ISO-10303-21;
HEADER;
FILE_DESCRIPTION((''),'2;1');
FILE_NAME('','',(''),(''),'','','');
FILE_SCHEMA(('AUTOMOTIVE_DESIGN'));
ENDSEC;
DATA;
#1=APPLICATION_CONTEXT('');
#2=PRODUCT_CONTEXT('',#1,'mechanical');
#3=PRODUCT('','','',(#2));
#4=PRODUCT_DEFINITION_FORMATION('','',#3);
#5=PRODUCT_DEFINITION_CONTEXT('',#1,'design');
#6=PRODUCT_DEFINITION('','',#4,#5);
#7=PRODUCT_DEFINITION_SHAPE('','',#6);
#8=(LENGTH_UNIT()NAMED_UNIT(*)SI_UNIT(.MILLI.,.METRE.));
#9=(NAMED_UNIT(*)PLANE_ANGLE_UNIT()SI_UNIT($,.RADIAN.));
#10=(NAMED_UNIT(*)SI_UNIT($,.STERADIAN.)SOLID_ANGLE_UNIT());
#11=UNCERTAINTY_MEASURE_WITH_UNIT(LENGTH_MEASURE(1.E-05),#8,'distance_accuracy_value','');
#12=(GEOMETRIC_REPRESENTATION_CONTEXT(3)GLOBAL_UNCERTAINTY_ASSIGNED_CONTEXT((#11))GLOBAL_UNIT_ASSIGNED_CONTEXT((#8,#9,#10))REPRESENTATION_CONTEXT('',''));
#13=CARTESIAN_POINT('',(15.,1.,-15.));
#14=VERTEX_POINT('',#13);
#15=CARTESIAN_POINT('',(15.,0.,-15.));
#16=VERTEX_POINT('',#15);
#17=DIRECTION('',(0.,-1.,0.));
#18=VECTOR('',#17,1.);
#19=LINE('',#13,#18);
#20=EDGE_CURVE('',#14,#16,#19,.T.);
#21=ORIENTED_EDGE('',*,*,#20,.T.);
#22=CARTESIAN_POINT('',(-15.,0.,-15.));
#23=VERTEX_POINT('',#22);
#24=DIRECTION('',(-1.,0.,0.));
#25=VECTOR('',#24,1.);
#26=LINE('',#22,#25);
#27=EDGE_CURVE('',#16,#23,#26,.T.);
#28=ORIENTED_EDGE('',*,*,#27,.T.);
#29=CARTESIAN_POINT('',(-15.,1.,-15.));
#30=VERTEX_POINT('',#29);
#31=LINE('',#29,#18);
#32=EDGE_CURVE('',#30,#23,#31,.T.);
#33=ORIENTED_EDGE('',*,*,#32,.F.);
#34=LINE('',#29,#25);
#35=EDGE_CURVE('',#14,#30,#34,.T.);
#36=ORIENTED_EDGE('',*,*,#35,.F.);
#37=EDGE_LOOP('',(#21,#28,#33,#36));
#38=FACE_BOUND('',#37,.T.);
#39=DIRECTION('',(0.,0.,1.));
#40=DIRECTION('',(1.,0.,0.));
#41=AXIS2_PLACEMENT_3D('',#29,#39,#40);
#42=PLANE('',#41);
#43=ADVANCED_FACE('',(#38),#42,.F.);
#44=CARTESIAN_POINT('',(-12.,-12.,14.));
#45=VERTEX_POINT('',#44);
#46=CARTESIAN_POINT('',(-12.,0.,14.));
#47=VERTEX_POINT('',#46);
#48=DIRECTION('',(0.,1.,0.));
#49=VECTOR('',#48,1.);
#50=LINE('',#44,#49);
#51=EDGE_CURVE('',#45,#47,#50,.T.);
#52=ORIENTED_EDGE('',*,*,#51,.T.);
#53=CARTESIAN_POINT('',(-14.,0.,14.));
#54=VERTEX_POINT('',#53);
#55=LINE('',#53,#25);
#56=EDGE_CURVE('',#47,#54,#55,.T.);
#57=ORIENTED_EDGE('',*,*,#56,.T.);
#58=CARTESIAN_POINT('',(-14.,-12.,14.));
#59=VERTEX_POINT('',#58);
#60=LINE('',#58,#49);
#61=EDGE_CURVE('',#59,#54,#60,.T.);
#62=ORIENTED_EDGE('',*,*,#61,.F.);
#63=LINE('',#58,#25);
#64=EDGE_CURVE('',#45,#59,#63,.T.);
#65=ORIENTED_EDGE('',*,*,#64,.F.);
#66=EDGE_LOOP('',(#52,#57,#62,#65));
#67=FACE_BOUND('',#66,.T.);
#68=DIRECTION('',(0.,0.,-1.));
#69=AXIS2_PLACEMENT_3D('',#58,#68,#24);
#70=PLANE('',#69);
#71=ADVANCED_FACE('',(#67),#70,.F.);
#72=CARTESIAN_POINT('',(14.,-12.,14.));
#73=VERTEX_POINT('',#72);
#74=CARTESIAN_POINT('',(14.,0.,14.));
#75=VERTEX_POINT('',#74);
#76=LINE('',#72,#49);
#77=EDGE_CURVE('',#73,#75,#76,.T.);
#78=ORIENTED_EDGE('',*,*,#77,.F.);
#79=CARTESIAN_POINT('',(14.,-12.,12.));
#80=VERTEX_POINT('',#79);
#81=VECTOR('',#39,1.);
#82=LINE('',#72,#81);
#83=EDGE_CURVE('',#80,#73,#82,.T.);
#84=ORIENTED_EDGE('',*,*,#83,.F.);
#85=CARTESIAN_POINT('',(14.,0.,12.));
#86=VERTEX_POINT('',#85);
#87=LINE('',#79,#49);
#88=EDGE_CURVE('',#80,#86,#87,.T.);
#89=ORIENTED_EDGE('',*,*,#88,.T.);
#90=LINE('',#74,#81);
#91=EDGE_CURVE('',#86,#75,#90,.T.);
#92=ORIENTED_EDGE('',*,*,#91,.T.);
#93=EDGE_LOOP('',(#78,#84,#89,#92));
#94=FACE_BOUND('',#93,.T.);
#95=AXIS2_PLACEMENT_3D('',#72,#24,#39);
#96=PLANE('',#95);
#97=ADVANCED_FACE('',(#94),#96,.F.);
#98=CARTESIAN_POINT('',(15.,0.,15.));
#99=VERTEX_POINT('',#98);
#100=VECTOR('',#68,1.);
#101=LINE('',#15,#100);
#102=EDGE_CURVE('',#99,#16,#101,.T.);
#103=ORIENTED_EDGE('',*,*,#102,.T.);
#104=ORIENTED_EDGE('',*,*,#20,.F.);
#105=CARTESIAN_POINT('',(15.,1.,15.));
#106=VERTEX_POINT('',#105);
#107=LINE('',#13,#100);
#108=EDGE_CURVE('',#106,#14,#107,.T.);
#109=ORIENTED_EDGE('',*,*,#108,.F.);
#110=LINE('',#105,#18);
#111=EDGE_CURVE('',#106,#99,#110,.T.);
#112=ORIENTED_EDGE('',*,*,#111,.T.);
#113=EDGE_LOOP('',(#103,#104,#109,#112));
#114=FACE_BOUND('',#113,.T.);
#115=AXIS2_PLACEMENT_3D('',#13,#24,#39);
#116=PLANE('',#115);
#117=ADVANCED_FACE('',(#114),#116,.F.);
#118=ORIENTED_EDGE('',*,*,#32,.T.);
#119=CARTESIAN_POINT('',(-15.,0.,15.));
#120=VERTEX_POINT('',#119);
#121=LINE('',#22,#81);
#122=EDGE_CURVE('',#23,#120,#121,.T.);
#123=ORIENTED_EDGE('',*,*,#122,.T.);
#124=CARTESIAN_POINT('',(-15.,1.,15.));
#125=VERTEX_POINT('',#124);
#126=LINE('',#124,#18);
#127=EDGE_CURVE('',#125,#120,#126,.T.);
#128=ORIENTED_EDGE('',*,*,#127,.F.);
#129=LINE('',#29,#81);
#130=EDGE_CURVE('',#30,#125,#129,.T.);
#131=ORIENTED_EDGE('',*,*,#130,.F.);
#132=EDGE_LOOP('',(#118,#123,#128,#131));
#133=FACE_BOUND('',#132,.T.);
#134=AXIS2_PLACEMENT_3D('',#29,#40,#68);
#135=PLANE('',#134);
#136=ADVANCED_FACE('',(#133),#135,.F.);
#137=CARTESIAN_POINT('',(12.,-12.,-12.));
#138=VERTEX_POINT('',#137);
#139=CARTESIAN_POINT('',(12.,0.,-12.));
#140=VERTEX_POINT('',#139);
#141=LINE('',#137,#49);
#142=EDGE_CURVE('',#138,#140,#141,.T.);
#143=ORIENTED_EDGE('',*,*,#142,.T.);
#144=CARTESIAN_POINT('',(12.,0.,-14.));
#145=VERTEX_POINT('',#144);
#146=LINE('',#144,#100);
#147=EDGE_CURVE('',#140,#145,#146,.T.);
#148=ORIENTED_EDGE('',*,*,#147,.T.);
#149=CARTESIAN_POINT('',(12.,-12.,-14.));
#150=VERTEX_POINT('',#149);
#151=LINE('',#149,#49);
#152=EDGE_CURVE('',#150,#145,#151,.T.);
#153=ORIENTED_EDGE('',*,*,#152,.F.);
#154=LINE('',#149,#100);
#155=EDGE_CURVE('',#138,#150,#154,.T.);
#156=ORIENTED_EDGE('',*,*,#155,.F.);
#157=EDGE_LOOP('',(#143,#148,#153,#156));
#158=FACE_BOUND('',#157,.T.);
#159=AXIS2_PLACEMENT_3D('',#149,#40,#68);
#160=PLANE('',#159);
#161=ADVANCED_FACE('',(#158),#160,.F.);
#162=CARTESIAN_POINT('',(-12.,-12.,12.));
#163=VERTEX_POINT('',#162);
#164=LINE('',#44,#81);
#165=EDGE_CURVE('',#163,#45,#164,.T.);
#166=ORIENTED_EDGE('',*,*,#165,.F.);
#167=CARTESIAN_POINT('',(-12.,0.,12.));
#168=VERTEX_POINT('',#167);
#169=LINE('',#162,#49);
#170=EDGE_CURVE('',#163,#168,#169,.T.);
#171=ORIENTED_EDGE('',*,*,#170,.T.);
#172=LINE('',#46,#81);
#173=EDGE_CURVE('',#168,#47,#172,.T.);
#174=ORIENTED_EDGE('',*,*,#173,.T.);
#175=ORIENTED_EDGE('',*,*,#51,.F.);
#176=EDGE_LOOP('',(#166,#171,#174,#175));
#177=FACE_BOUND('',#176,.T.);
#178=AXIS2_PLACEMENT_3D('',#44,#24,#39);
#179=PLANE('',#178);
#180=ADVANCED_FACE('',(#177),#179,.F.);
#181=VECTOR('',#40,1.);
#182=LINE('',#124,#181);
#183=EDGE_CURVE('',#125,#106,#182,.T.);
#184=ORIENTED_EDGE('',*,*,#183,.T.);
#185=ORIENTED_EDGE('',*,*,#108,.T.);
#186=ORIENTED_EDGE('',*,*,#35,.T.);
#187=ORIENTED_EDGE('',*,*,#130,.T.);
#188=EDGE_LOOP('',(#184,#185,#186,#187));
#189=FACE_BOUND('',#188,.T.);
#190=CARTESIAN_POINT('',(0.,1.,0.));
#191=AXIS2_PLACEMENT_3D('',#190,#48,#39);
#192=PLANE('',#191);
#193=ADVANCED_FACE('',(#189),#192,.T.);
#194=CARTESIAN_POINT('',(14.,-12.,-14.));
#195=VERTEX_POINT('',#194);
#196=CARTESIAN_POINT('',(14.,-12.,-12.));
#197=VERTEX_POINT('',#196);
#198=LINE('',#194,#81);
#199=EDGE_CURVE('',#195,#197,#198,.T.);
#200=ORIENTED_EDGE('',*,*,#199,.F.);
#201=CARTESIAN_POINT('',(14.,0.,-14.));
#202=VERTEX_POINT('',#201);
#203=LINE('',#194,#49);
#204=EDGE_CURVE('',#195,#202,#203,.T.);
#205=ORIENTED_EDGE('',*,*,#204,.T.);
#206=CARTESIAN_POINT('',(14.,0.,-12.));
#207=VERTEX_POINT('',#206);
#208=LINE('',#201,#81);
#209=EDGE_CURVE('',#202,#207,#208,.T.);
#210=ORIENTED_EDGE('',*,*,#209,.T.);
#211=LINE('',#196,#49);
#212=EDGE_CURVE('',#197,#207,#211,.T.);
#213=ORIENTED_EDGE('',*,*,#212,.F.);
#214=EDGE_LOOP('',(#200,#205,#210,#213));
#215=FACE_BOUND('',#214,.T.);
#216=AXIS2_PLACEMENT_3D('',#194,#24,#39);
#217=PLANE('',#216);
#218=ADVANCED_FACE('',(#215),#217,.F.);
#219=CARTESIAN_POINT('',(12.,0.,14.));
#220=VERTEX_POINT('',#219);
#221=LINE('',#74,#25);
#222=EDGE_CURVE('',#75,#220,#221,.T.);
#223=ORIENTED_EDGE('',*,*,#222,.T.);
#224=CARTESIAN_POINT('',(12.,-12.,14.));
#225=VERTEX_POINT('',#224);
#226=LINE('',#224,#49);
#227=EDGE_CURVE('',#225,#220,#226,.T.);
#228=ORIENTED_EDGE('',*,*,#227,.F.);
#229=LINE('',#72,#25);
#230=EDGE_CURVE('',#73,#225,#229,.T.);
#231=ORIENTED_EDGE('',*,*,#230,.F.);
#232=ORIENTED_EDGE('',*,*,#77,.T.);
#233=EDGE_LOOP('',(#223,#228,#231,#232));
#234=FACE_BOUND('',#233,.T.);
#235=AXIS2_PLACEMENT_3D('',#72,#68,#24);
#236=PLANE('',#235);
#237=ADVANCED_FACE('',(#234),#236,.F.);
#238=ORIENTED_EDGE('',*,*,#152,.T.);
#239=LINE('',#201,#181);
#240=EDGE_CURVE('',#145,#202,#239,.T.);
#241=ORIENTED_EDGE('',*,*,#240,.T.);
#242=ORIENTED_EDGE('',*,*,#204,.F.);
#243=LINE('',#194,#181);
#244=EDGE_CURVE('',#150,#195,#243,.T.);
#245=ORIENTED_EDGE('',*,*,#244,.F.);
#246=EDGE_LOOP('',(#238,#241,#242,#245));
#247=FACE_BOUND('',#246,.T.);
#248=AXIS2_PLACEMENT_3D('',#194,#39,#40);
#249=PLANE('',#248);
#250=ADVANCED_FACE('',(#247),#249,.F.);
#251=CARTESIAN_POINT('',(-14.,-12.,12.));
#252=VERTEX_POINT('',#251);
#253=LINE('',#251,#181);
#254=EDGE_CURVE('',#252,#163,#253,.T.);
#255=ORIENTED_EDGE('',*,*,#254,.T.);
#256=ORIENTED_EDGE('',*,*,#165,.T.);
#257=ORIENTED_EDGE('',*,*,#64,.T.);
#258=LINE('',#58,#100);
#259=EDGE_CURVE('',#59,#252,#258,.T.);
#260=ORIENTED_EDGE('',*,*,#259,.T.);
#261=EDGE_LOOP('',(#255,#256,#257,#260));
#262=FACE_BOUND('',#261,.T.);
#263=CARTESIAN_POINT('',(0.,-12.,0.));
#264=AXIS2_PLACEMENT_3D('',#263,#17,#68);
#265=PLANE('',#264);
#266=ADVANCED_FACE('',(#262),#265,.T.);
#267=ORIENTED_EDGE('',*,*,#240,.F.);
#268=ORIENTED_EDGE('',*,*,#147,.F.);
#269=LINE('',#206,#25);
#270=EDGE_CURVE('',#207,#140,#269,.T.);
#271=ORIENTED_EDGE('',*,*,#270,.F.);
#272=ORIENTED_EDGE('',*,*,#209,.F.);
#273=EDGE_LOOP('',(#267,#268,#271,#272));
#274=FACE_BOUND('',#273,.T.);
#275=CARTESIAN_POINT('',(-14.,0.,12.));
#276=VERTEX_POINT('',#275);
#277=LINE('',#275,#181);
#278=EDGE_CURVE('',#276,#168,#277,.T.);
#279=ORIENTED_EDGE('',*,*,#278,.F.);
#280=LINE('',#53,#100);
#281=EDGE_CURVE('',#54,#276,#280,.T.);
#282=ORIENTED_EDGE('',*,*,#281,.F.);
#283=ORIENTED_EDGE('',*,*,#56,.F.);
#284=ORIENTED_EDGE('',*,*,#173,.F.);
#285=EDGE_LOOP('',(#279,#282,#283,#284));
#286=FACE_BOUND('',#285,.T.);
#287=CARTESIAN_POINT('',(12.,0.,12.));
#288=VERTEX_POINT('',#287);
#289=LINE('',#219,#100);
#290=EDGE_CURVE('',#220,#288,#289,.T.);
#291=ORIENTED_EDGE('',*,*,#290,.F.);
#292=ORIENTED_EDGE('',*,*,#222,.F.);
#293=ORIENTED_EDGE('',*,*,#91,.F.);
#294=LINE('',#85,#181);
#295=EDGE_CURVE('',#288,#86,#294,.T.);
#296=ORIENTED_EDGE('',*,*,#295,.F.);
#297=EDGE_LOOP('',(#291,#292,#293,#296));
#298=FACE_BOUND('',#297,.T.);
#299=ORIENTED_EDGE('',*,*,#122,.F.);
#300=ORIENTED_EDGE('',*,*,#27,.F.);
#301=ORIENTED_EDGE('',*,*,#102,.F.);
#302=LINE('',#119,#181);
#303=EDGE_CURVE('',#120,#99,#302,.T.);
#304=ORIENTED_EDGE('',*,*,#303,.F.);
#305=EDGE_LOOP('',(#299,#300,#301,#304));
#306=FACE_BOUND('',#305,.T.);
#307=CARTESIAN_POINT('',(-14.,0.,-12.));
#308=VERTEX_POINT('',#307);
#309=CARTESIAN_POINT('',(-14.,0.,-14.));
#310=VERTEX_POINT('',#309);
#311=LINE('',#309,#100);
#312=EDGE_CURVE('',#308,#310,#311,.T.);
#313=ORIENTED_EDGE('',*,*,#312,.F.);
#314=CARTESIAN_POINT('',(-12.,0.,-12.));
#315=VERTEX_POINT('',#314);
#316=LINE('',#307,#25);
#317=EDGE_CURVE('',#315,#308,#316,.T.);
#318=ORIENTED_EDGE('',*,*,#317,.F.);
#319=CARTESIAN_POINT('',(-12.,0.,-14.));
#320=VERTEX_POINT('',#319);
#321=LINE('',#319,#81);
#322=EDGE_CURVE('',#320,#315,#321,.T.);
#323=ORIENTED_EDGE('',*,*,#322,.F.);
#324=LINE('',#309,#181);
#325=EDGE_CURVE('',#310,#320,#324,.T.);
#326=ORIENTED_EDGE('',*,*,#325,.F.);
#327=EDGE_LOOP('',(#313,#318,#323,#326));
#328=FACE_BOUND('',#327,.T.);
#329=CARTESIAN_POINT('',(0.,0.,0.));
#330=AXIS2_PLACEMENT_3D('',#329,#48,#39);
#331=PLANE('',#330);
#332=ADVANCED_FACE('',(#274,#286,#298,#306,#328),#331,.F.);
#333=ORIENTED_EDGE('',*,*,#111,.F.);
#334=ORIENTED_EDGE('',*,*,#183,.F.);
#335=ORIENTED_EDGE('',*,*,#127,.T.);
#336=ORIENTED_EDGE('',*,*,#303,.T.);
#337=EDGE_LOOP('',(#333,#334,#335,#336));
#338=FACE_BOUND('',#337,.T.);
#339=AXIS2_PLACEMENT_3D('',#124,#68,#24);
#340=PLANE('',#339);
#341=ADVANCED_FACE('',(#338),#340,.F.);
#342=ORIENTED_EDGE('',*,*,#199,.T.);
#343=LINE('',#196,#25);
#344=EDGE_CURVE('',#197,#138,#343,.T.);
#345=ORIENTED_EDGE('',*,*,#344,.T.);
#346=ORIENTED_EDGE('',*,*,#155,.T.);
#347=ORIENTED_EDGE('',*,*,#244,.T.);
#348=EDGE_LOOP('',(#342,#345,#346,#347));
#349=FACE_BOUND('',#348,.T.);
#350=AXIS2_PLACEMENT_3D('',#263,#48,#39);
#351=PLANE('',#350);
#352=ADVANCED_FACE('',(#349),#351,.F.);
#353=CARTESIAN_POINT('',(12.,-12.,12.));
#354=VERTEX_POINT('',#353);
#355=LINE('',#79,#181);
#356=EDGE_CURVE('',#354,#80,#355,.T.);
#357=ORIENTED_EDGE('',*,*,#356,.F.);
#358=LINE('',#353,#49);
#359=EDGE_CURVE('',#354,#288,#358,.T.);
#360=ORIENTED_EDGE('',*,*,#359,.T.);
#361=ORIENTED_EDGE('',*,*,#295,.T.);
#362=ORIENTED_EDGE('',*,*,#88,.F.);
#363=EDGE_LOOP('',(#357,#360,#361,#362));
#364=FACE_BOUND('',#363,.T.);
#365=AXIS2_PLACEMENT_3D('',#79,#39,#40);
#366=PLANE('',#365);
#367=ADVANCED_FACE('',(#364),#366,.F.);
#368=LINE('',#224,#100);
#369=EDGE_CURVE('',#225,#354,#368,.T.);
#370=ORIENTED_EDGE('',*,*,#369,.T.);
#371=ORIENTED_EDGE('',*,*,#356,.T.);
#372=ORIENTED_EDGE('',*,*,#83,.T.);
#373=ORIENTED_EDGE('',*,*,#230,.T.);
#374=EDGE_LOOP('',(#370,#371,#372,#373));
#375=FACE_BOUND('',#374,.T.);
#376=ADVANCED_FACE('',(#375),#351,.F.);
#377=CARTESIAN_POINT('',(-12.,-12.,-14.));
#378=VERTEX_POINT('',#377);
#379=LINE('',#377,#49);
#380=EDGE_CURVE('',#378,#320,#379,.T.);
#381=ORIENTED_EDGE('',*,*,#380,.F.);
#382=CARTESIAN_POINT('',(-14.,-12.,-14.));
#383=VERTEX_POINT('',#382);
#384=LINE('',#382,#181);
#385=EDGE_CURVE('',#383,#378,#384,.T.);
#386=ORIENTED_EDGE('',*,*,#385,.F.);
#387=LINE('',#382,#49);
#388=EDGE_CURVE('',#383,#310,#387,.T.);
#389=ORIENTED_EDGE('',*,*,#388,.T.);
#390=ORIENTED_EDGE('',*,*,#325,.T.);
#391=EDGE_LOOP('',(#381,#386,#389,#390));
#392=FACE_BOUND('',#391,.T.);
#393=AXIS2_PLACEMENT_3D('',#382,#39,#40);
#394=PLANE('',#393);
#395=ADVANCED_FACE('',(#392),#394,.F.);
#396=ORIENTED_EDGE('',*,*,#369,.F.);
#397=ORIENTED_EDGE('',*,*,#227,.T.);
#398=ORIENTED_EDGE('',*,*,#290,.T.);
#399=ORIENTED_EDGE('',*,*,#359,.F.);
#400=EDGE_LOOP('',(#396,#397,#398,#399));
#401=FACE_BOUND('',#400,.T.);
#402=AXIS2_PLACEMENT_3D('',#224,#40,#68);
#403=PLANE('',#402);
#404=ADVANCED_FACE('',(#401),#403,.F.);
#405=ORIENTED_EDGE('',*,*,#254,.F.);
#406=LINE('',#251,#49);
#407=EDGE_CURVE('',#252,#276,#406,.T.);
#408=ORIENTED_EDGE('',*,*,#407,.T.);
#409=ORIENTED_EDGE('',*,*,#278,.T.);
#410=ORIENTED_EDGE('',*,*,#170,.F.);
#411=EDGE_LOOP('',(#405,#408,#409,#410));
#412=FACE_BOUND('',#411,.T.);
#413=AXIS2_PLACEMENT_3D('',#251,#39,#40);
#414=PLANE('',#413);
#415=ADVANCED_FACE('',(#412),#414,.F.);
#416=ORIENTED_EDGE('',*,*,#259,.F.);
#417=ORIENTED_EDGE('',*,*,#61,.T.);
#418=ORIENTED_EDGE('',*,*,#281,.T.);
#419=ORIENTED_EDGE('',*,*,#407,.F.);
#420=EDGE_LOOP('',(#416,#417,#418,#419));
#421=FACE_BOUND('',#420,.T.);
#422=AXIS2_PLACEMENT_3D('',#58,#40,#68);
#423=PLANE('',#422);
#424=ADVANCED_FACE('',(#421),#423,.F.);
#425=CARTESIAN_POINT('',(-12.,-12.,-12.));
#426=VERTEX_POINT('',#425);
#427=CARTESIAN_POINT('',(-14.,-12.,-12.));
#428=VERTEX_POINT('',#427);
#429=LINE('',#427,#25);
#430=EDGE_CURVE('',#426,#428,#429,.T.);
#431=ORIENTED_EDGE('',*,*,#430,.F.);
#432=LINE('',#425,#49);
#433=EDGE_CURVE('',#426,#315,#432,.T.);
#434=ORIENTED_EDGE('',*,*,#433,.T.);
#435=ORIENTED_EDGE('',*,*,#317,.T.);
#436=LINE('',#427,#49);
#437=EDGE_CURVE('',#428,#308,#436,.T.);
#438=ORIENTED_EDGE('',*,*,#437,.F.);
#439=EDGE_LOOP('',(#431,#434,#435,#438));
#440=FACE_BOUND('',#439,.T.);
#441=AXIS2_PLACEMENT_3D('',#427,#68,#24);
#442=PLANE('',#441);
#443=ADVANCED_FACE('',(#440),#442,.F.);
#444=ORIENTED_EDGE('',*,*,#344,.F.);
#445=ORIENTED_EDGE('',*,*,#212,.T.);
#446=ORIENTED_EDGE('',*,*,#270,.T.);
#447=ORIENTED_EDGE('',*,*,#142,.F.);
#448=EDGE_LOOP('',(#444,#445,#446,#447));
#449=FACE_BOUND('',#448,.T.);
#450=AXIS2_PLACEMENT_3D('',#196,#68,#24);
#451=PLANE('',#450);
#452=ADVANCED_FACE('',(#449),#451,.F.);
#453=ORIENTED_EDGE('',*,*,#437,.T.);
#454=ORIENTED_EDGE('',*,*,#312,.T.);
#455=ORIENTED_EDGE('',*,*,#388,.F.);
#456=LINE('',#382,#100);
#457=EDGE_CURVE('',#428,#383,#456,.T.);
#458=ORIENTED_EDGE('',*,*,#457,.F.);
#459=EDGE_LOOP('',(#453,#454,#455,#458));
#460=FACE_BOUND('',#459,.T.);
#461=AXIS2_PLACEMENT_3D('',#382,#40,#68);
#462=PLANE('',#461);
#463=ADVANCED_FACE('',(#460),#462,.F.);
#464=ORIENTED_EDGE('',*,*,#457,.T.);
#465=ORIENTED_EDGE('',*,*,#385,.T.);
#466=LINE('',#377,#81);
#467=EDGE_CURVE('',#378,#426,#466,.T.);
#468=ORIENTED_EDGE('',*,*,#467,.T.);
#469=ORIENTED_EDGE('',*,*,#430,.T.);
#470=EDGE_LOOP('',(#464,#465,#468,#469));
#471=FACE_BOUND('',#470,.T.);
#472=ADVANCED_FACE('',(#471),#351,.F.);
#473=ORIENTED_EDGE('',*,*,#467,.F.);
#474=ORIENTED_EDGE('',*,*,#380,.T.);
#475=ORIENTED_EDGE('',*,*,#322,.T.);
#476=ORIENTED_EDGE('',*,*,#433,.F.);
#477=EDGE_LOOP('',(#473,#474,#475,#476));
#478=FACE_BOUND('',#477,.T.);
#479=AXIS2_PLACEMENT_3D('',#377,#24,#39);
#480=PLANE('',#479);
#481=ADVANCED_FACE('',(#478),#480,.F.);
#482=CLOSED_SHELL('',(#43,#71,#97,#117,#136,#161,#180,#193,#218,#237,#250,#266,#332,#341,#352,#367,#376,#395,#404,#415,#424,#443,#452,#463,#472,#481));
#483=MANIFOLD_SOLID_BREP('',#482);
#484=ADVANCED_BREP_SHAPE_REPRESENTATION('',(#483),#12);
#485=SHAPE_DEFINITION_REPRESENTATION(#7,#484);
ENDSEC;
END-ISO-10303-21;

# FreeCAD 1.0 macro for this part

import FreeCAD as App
import Part
import Sketcher

V = App.Vector

doc = App.newDocument("Part")
body = doc.addObject("PartDesign::Body", "Body")

sketch1 = body.newObject("Sketcher::SketchObject", "Sketch")
sketch1.AttachmentSupport = (doc.getObject("XZ_Plane"), [""])
sketch1.MapMode = "FlatFace"
sketch1.addGeometry([
    Part.LineSegment(V(-15, -15, 0), V(-15, 15, 0)),
    Part.LineSegment(V(-15, 15, 0), V(15, 15, 0)),
    Part.LineSegment(V(15, 15, 0), V(15, -15, 0)),
    Part.LineSegment(V(15, -15, 0), V(-15, -15, 0)),
], False)
sketch1.addConstraint([
    Sketcher.Constraint("Coincident", 0, 2, 1, 1),
    Sketcher.Constraint("Coincident", 1, 2, 2, 1),
    Sketcher.Constraint("Coincident", 2, 2, 3, 1),
    Sketcher.Constraint("Coincident", 3, 2, 0, 1),
    Sketcher.Constraint("Vertical", 0),
    Sketcher.Constraint("Horizontal", 1),
    Sketcher.Constraint("Vertical", 2),
    Sketcher.Constraint("Horizontal", 3),
    Sketcher.Constraint("Symmetric", 0, 2, 2, 2, -1, 1),
    Sketcher.Constraint("Equal", 3, 0),
    Sketcher.Constraint("DistanceX", 1, 1, 1, 2, 30.0),
])
pad1 = body.newObject("PartDesign::Pad", "Pad")
pad1.Profile = sketch1
pad1.Length = 1
pad1.Reversed = True

sketch2 = body.newObject("Sketcher::SketchObject", "Sketch001")
sketch2.AttachmentSupport = (doc.getObject("XZ_Plane"), [""])
sketch2.MapMode = "FlatFace"
sketch2.addGeometry([
    Part.LineSegment(V(-14, 14, 0), V(-14, 12, 0)),
    Part.LineSegment(V(-14, 12, 0), V(-12, 12, 0)),
    Part.LineSegment(V(-12, 12, 0), V(-12, 14, 0)),
    Part.LineSegment(V(-12, 14, 0), V(-14, 14, 0)),
    Part.LineSegment(V(12, 14, 0), V(12, 12, 0)),
    Part.LineSegment(V(12, 12, 0), V(14, 12, 0)),
    Part.LineSegment(V(14, 12, 0), V(14, 14, 0)),
    Part.LineSegment(V(14, 14, 0), V(12, 14, 0)),
    Part.LineSegment(V(12, -12, 0), V(12, -14, 0)),
    Part.LineSegment(V(12, -14, 0), V(14, -14, 0)),
    Part.LineSegment(V(14, -14, 0), V(14, -12, 0)),
    Part.LineSegment(V(14, -12, 0), V(12, -12, 0)),
    Part.LineSegment(V(-14, -12, 0), V(-14, -14, 0)),
    Part.LineSegment(V(-14, -14, 0), V(-12, -14, 0)),
    Part.LineSegment(V(-12, -14, 0), V(-12, -12, 0)),
    Part.LineSegment(V(-12, -12, 0), V(-14, -12, 0)),
], False)
sketch2.addConstraint([
    Sketcher.Constraint("Coincident", 0, 2, 1, 1),
    Sketcher.Constraint("Coincident", 1, 2, 2, 1),
    Sketcher.Constraint("Coincident", 2, 2, 3, 1),
    Sketcher.Constraint("Coincident", 3, 2, 0, 1),
    Sketcher.Constraint("Coincident", 4, 2, 5, 1),
    Sketcher.Constraint("Coincident", 5, 2, 6, 1),
    Sketcher.Constraint("Coincident", 6, 2, 7, 1),
    Sketcher.Constraint("Coincident", 7, 2, 4, 1),
    Sketcher.Constraint("Coincident", 8, 2, 9, 1),
    Sketcher.Constraint("Coincident", 9, 2, 10, 1),
    Sketcher.Constraint("Coincident", 10, 2, 11, 1),
    Sketcher.Constraint("Coincident", 11, 2, 8, 1),
    Sketcher.Constraint("Coincident", 12, 2, 13, 1),
    Sketcher.Constraint("Coincident", 13, 2, 14, 1),
    Sketcher.Constraint("Coincident", 14, 2, 15, 1),
    Sketcher.Constraint("Coincident", 15, 2, 12, 1),
    Sketcher.Constraint("Vertical", 0),
    Sketcher.Constraint("Horizontal", 1),
    Sketcher.Constraint("Vertical", 2),
    Sketcher.Constraint("Horizontal", 3),
    Sketcher.Constraint("Vertical", 4),
    Sketcher.Constraint("Horizontal", 5),
    Sketcher.Constraint("Vertical", 6),
    Sketcher.Constraint("Horizontal", 7),
    Sketcher.Constraint("Vertical", 8),
    Sketcher.Constraint("Horizontal", 9),
    Sketcher.Constraint("Vertical", 10),
    Sketcher.Constraint("Horizontal", 11),
    Sketcher.Constraint("Vertical", 12),
    Sketcher.Constraint("Horizontal", 13),
    Sketcher.Constraint("Vertical", 14),
    Sketcher.Constraint("Horizontal", 15),
    Sketcher.Constraint("Symmetric", 2, 2, 8, 2, -1, 1),
    Sketcher.Constraint("Symmetric", 0, 2, 10, 2, -1, 1),
    Sketcher.Constraint("Symmetric", 6, 2, 12, 2, -1, 1),
    Sketcher.Constraint("Symmetric", 4, 2, 14, 2, -1, 1),
    Sketcher.Constraint("Symmetric", 1, 2, 4, 2, -2),
    Sketcher.Constraint("Symmetric", 3, 2, 6, 2, -2),
    Sketcher.Constraint("Equal", 15, 0),
    Sketcher.Constraint("DistanceX", 1, 1, 1, 2, 2.0),
    Sketcher.Constraint("DistanceX", 0, 2, -1, 1, 14.0),
    Sketcher.Constraint("DistanceY", -1, 1, 0, 2, 12.0),
])
pad2 = body.newObject("PartDesign::Pad", "Pad001")
pad2.Profile = sketch2
pad2.Length = 12

doc.recompute()
